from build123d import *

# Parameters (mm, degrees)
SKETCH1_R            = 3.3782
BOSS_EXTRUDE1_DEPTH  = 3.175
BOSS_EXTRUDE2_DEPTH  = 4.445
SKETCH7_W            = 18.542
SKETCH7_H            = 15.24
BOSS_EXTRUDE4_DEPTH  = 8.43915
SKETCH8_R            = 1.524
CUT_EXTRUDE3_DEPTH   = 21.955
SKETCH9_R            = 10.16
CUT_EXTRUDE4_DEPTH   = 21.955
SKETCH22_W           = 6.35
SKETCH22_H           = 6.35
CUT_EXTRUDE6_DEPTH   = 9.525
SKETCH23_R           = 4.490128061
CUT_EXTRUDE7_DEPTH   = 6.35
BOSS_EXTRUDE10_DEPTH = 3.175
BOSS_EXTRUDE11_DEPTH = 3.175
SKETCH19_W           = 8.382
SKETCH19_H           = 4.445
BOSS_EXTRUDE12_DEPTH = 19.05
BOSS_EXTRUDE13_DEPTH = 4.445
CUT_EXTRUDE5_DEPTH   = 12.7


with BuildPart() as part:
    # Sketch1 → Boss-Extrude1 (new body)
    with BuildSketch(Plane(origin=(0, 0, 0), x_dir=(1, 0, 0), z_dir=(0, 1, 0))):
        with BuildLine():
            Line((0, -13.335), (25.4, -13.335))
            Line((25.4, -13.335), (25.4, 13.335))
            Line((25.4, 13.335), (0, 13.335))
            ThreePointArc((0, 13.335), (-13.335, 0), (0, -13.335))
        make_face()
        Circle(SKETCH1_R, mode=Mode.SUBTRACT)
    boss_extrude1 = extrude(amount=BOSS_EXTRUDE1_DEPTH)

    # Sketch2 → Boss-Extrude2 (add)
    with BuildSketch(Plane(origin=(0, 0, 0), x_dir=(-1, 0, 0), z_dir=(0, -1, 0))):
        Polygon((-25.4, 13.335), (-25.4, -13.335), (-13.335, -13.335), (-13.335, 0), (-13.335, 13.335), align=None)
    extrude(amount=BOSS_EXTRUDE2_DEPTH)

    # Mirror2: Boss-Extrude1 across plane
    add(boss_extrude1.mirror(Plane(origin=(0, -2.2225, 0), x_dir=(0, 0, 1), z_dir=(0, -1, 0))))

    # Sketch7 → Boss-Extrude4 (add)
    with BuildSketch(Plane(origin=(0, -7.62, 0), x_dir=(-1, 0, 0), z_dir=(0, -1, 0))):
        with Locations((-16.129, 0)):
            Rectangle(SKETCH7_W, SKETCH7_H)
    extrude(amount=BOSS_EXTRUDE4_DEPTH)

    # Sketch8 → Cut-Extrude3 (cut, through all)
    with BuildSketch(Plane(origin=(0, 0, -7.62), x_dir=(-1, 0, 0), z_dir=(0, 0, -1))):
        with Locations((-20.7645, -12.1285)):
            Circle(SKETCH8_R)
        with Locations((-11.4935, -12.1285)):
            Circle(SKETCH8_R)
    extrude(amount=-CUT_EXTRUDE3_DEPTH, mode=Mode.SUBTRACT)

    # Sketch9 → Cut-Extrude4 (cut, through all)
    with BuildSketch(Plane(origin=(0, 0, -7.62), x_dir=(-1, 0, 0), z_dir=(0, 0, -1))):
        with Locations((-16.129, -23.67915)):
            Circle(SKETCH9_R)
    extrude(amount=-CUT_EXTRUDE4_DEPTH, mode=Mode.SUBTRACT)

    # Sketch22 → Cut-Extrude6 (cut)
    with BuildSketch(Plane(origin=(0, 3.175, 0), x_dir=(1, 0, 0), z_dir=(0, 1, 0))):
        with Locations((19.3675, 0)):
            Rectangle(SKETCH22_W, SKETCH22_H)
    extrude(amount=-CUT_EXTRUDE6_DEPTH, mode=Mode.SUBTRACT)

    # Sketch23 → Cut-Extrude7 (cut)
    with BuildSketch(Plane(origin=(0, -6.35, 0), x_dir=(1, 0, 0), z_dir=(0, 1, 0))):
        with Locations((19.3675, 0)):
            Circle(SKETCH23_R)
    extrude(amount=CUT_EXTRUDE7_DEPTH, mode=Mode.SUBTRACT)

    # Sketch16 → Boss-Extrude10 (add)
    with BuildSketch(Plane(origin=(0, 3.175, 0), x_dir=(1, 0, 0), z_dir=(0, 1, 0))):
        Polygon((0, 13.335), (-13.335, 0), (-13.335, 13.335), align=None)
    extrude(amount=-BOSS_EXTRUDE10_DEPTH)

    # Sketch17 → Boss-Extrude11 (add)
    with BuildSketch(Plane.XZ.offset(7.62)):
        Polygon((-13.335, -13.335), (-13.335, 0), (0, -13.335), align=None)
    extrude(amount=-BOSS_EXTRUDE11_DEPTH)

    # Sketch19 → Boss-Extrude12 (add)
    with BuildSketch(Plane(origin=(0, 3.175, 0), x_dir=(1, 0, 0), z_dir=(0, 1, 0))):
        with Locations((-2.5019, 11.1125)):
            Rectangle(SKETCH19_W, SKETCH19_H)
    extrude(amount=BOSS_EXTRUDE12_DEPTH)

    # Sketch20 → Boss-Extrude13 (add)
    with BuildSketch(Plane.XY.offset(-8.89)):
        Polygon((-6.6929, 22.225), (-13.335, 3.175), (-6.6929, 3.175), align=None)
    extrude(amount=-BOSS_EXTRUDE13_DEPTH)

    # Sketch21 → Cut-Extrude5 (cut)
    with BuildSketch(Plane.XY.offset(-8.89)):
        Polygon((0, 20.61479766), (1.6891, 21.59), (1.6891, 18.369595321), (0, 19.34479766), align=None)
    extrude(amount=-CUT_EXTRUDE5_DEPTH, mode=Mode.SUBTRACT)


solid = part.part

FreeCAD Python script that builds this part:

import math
import FreeCAD as App
import Part
import Sketcher
from FreeCAD import Vector
Q = App.Units.Quantity

doc = App.newDocument("Part")
body = doc.addObject("PartDesign::Body", "Body")

sketch1 = doc.addObject("Sketcher::SketchObject", "Sketch")
body.addObject(sketch1)
sketch1.AttachmentSupport = (doc.XZ_Plane, [""])
sketch1.MapMode = "FlatFace"
sketch1.addGeometry([
    Part.LineSegment(Vector(0, 13.335, 0), Vector(25.4, 13.335, 0)),
    Part.LineSegment(Vector(25.4, 13.335, 0), Vector(25.4, -13.335, 0)),
    Part.LineSegment(Vector(25.4, -13.335, 0), Vector(0, -13.335, 0)),
    Part.ArcOfCircle(Part.Circle(Vector(0, 0, 0), Vector(0, 0, 1), 13.335), math.radians(90), math.radians(270)),
    Part.Circle(Vector(0, 0, 0), Vector(0, 0, 1), 3.3782),
], False)
sketch1.addConstraint([
    Sketcher.Constraint("Coincident", 0, 2, 1, 1),
    Sketcher.Constraint("Coincident", 1, 2, 2, 1),
    Sketcher.Constraint("Tangent", 2, 2, 3, 2),
    Sketcher.Constraint("Tangent", 3, 1, 0, 1),
    Sketcher.Constraint("Horizontal", 0),
    Sketcher.Constraint("Vertical", 1),
    Sketcher.Constraint("Horizontal", 2),
    Sketcher.Constraint("Coincident", 3, 3, -1, 1),
    Sketcher.Constraint("Coincident", 4, 3, -1, 1),
    Sketcher.Constraint("DistanceX", 0, 1, 0, 2, Q("1 in")),
    Sketcher.Constraint("Diameter", 4, Q("0.266 in")),
    Sketcher.Constraint("Radius", 3, Q("0.525 in")),
])
pad1 = doc.addObject("PartDesign::Pad", "Pad")
body.addObject(pad1)
pad1.Profile = sketch1
pad1.Length = Q("0.125 in")
pad1.Reversed = True

sketch2 = doc.addObject("Sketcher::SketchObject", "Sketch001")
body.addObject(sketch2)
sketch2.AttachmentSupport = (doc.XZ_Plane, [""])
sketch2.MapMode = "FlatFace"
sketch2.addGeometry([
    Part.LineSegment(Vector(25.4, -13.335, 0), Vector(25.4, 13.335, 0)),
    Part.LineSegment(Vector(25.4, 13.335, 0), Vector(13.335, 13.335, 0)),
    Part.LineSegment(Vector(13.335, 13.335, 0), Vector(13.335, -13.335, 0)),
    Part.LineSegment(Vector(13.335, -13.335, 0), Vector(25.4, -13.335, 0)),
], False)
sketch2.addConstraint([
    Sketcher.Constraint("Coincident", 0, 2, 1, 1),
    Sketcher.Constraint("Coincident", 1, 2, 2, 1),
    Sketcher.Constraint("Coincident", 2, 2, 3, 1),
    Sketcher.Constraint("Coincident", 3, 2, 0, 1),
    Sketcher.Constraint("Vertical", 0),
    Sketcher.Constraint("Horizontal", 1),
    Sketcher.Constraint("Vertical", 2),
    Sketcher.Constraint("Horizontal", 3),
    Sketcher.Constraint("DistanceX", -1, 1, 0, 2, Q("1 in")),
    Sketcher.Constraint("DistanceY", 0, 1, 0, 2, Q("1.05 in")),
    Sketcher.Constraint("DistanceX", 1, 2, 1, 1, Q("0.475 in")),
    Sketcher.Constraint("DistanceY", -1, 1, 0, 2, Q("0.525 in")),
])
pad2 = doc.addObject("PartDesign::Pad", "Pad001")
body.addObject(pad2)
pad2.Profile = sketch2
pad2.Length = Q("0.175 in")
doc.recompute()

datumplane = doc.addObject("PartDesign::Plane", "DatumPlane")
body.addObject(datumplane)
datumplane.AttachmentSupport = (doc.XZ_Plane, [""])
datumplane.MapMode = "FlatFace"
datumplane.AttachmentOffset = App.Placement(Vector(0, 0, 0.0875 * 25.4), App.Rotation())
mirrored = doc.addObject("PartDesign::Mirrored", "Mirrored")
body.addObject(mirrored)
mirrored.Originals = [pad1]
mirrored.MirrorPlane = (datumplane, [""])
body.Tip = mirrored

sketch3 = doc.addObject("Sketcher::SketchObject", "Sketch002")
body.addObject(sketch3)
sketch3.AttachmentSupport = (doc.XZ_Plane, [""])
sketch3.MapMode = "FlatFace"
sketch3.AttachmentOffset = App.Placement(Vector(0, 0, 0.3 * 25.4), App.Rotation())
sketch3.addGeometry([
    Part.LineSegment(Vector(25.4, -7.62, 0), Vector(25.4, 7.62, 0)),
    Part.LineSegment(Vector(25.4, 7.62, 0), Vector(6.858, 7.62, 0)),
    Part.LineSegment(Vector(6.858, 7.62, 0), Vector(6.858, -7.62, 0)),
    Part.LineSegment(Vector(6.858, -7.62, 0), Vector(25.4, -7.62, 0)),
], False)
sketch3.addConstraint([
    Sketcher.Constraint("Coincident", 0, 2, 1, 1),
    Sketcher.Constraint("Coincident", 1, 2, 2, 1),
    Sketcher.Constraint("Coincident", 2, 2, 3, 1),
    Sketcher.Constraint("Coincident", 3, 2, 0, 1),
    Sketcher.Constraint("Vertical", 0),
    Sketcher.Constraint("Horizontal", 1),
    Sketcher.Constraint("Vertical", 2),
    Sketcher.Constraint("Horizontal", 3),
    Sketcher.Constraint("DistanceY", 0, 1, 0, 2, Q("0.6 in")),
    Sketcher.Constraint("DistanceX", -1, 1, 0, 2, Q("1 in")),
    Sketcher.Constraint("DistanceX", 1, 2, 1, 1, Q("0.73 in")),
    Sketcher.Constraint("DistanceY", -1, 1, 0, 2, Q("0.3 in")),
])
pad3 = doc.addObject("PartDesign::Pad", "Pad002")
body.addObject(pad3)
pad3.Profile = sketch3
pad3.Length = 8.43915

sketch4 = doc.addObject("Sketcher::SketchObject", "Sketch003")
body.addObject(sketch4)
sketch4.AttachmentSupport = (doc.XY_Plane, [""])
sketch4.MapMode = "FlatFace"
sketch4.AttachmentOffset = App.Placement(Vector(0, 0, -0.3 * 25.4), App.Rotation())
sketch4.addGeometry([
    Part.Circle(Vector(20.7645, -12.1285, 0), Vector(0, 0, 1), 1.524),
    Part.Circle(Vector(11.4935, -12.1285, 0), Vector(0, 0, 1), 1.524),
], False)
sketch4.addConstraint([
    Sketcher.Constraint("Equal", 0, 1),
    Sketcher.Constraint("Horizontal", 0, 3, 1, 3),
    Sketcher.Constraint("Diameter", 0, Q("0.12 in")),
    Sketcher.Constraint("DistanceX", 1, 3, 0, 3, Q("0.365 in")),
    Sketcher.Constraint("DistanceX", -1, 1, 0, 3, Q("0.8175 in")),
    Sketcher.Constraint("DistanceY", 0, 3, -1, 1, Q("0.4775 in")),
])
pocket1 = doc.addObject("PartDesign::Pocket", "Pocket")
body.addObject(pocket1)
pocket1.Profile = sketch4
pocket1.Type = "ThroughAll"
pocket1.Reversed = True

sketch5 = doc.addObject("Sketcher::SketchObject", "Sketch004")
body.addObject(sketch5)
sketch5.AttachmentSupport = (doc.XY_Plane, [""])
sketch5.MapMode = "FlatFace"
sketch5.AttachmentOffset = App.Placement(Vector(0, 0, -0.3 * 25.4), App.Rotation())
sketch5.addGeometry(Part.Circle(Vector(16.129, -23.67915, 0), Vector(0, 0, 1), 10.16), False)
sketch5.addConstraint([
    Sketcher.Constraint("Diameter", 0, Q("0.8 in")),
    Sketcher.Constraint("DistanceX", -1, 1, 0, 3, Q("0.635 in")),
    Sketcher.Constraint("DistanceY", 0, 3, -1, 1, 23.67915),
])
pocket2 = doc.addObject("PartDesign::Pocket", "Pocket001")
body.addObject(pocket2)
pocket2.Profile = sketch5
pocket2.Type = "ThroughAll"
pocket2.Reversed = True

sketch6 = doc.addObject("Sketcher::SketchObject", "Sketch005")
body.addObject(sketch6)
sketch6.AttachmentSupport = (doc.XZ_Plane, [""])
sketch6.MapMode = "FlatFace"
sketch6.AttachmentOffset = App.Placement(Vector(0, 0, -0.125 * 25.4), App.Rotation())
sketch6.addGeometry([
    Part.LineSegment(Vector(16.1925, -3.175, 0), Vector(16.1925, 3.175, 0)),
    Part.LineSegment(Vector(16.1925, 3.175, 0), Vector(22.5425, 3.175, 0)),
    Part.LineSegment(Vector(22.5425, 3.175, 0), Vector(22.5425, -3.175, 0)),
    Part.LineSegment(Vector(22.5425, -3.175, 0), Vector(16.1925, -3.175, 0)),
], False)
sketch6.addConstraint([
    Sketcher.Constraint("Coincident", 0, 2, 1, 1),
    Sketcher.Constraint("Coincident", 1, 2, 2, 1),
    Sketcher.Constraint("Coincident", 2, 2, 3, 1),
    Sketcher.Constraint("Coincident", 3, 2, 0, 1),
    Sketcher.Constraint("Vertical", 0),
    Sketcher.Constraint("Horizontal", 1),
    Sketcher.Constraint("Vertical", 2),
    Sketcher.Constraint("Horizontal", 3),
    Sketcher.Constraint("Equal", 3, 0),
    Sketcher.Constraint("DistanceX", 1, 1, 1, 2, Q("0.25 in")),
    Sketcher.Constraint("DistanceY", -1, 1, 0, 2, Q("0.125 in")),
    Sketcher.Constraint("DistanceX", -1, 1, 0, 2, Q("0.6375 in")),
])
pocket3 = doc.addObject("PartDesign::Pocket", "Pocket002")
body.addObject(pocket3)
pocket3.Profile = sketch6
pocket3.Length = Q("0.375 in")
pocket3.Reversed = True

sketch7 = doc.addObject("Sketcher::SketchObject", "Sketch006")
body.addObject(sketch7)
sketch7.AttachmentSupport = (doc.XZ_Plane, [""])
sketch7.MapMode = "FlatFace"
sketch7.AttachmentOffset = App.Placement(Vector(0, 0, 0.25 * 25.4), App.Rotation())
sketch7.addGeometry(Part.Circle(Vector(19.3675, 0, 0), Vector(0, 0, 1), 4.490128), False)
sketch7.addConstraint([
    Sketcher.Constraint("PointOnObject", 0, 3, -1),
    Sketcher.Constraint("Diameter", 0, 8.980256),
    Sketcher.Constraint("DistanceX", -1, 1, 0, 3, Q("0.7625 in")),
])
pocket4 = doc.addObject("PartDesign::Pocket", "Pocket003")
body.addObject(pocket4)
pocket4.Profile = sketch7
pocket4.Length = Q("0.25 in")

sketch8 = doc.addObject("Sketcher::SketchObject", "Sketch007")
body.addObject(sketch8)
sketch8.AttachmentSupport = (doc.XZ_Plane, [""])
sketch8.MapMode = "FlatFace"
sketch8.AttachmentOffset = App.Placement(Vector(0, 0, -0.125 * 25.4), App.Rotation())
sketch8.addGeometry([
    Part.LineSegment(Vector(-13.335, 0, 0), Vector(0, -13.335, 0)),
    Part.LineSegment(Vector(0, -13.335, 0), Vector(-13.335, -13.335, 0)),
    Part.LineSegment(Vector(-13.335, -13.335, 0), Vector(-13.335, 0, 0)),
], False)
sketch8.addConstraint([
    Sketcher.Constraint("Coincident", 0, 2, 1, 1),
    Sketcher.Constraint("Coincident", 1, 2, 2, 1),
    Sketcher.Constraint("Coincident", 2, 2, 0, 1),
    Sketcher.Constraint("Horizontal", 1),
    Sketcher.Constraint("Vertical", 2),
    Sketcher.Constraint("PointOnObject", 0, 2, -2),
    Sketcher.Constraint("PointOnObject", 2, 2, -1),
    Sketcher.Constraint("Equal", 1, 2),
    Sketcher.Constraint("DistanceX", 1, 2, 1, 1, Q("0.525 in")),
])
pad4 = doc.addObject("PartDesign::Pad", "Pad003")
body.addObject(pad4)
pad4.Profile = sketch8
pad4.Length = Q("0.125 in")

sketch9 = doc.addObject("Sketcher::SketchObject", "Sketch008")
body.addObject(sketch9)
sketch9.AttachmentSupport = (doc.XZ_Plane, [""])
sketch9.MapMode = "FlatFace"
sketch9.AttachmentOffset = App.Placement(Vector(0, 0, 0.3 * 25.4), App.Rotation())
sketch9.addGeometry([
    Part.LineSegment(Vector(-13.335, 0, 0), Vector(-13.335, -13.335, 0)),
    Part.LineSegment(Vector(-13.335, -13.335, 0), Vector(0, -13.335, 0)),
    Part.LineSegment(Vector(0, -13.335, 0), Vector(-13.335, 0, 0)),
], False)
sketch9.addConstraint([
    Sketcher.Constraint("Coincident", 0, 2, 1, 1),
    Sketcher.Constraint("Coincident", 1, 2, 2, 1),
    Sketcher.Constraint("Coincident", 2, 2, 0, 1),
    Sketcher.Constraint("Vertical", 0),
    Sketcher.Constraint("Horizontal", 1),
    Sketcher.Constraint("PointOnObject", 1, 2, -2),
    Sketcher.Constraint("PointOnObject", 2, 2, -1),
    Sketcher.Constraint("Equal", 1, 0),
    Sketcher.Constraint("DistanceX", 1, 1, 1, 2, Q("0.525 in")),
])
pad5 = doc.addObject("PartDesign::Pad", "Pad004")
body.addObject(pad5)
pad5.Profile = sketch9
pad5.Length = Q("0.125 in")
pad5.Reversed = True

sketch10 = doc.addObject("Sketcher::SketchObject", "Sketch009")
body.addObject(sketch10)
sketch10.AttachmentSupport = (doc.XZ_Plane, [""])
sketch10.MapMode = "FlatFace"
sketch10.AttachmentOffset = App.Placement(Vector(0, 0, -0.125 * 25.4), App.Rotation())
sketch10.addGeometry([
    Part.LineSegment(Vector(-6.6929, -13.335, 0), Vector(-6.6929, -8.89, 0)),
    Part.LineSegment(Vector(-6.6929, -8.89, 0), Vector(1.6891, -8.89, 0)),
    Part.LineSegment(Vector(1.6891, -8.89, 0), Vector(1.6891, -13.335, 0)),
    Part.LineSegment(Vector(1.6891, -13.335, 0), Vector(-6.6929, -13.335, 0)),
], False)
sketch10.addConstraint([
    Sketcher.Constraint("Coincident", 0, 2, 1, 1),
    Sketcher.Constraint("Coincident", 1, 2, 2, 1),
    Sketcher.Constraint("Coincident", 2, 2, 3, 1),
    Sketcher.Constraint("Coincident", 3, 2, 0, 1),
    Sketcher.Constraint("Vertical", 0),
    Sketcher.Constraint("Horizontal", 1),
    Sketcher.Constraint("Vertical", 2),
    Sketcher.Constraint("Horizontal", 3),
    Sketcher.Constraint("DistanceX", 1, 1, 1, 2, Q("0.33 in")),
    Sketcher.Constraint("DistanceY", 0, 1, 0, 2, Q("0.175 in")),
    Sketcher.Constraint("DistanceY", 0, 2, -1, 1, Q("0.35 in")),
    Sketcher.Constraint("DistanceX", 0, 2, -1, 1, Q("0.2635 in")),
])
pad6 = doc.addObject("PartDesign::Pad", "Pad005")
body.addObject(pad6)
pad6.Profile = sketch10
pad6.Length = Q("0.75 in")
pad6.Reversed = True

sketch11 = doc.addObject("Sketcher::SketchObject", "Sketch010")
body.addObject(sketch11)
sketch11.AttachmentSupport = (doc.XY_Plane, [""])
sketch11.MapMode = "FlatFace"
sketch11.AttachmentOffset = App.Placement(Vector(0, 0, -0.35 * 25.4), App.Rotation())
sketch11.addGeometry([
    Part.LineSegment(Vector(-6.6929, 22.225, 0), Vector(-13.335, 3.175, 0)),
    Part.LineSegment(Vector(-13.335, 3.175, 0), Vector(-6.6929, 3.175, 0)),
    Part.LineSegment(Vector(-6.6929, 3.175, 0), Vector(-6.6929, 22.225, 0)),
], False)
sketch11.addConstraint([
    Sketcher.Constraint("Coincident", 0, 2, 1, 1),
    Sketcher.Constraint("Coincident", 1, 2, 2, 1),
    Sketcher.Constraint("Coincident", 2, 2, 0, 1),
    Sketcher.Constraint("Horizontal", 1),
    Sketcher.Constraint("Vertical", 2),
    Sketcher.Constraint("DistanceY", 2, 1, 2, 2, Q("0.75 in")),
    Sketcher.Constraint("DistanceX", 1, 1, 1, 2, Q("0.2615 in")),
    Sketcher.Constraint("DistanceX", 0, 2, -1, 1, Q("0.525 in")),
    Sketcher.Constraint("DistanceY", -1, 1, 0, 2, Q("0.125 in")),
])
pad7 = doc.addObject("PartDesign::Pad", "Pad006")
body.addObject(pad7)
pad7.Profile = sketch11
pad7.Length = Q("0.175 in")
pad7.Reversed = True

sketch12 = doc.addObject("Sketcher::SketchObject", "Sketch011")
body.addObject(sketch12)
sketch12.AttachmentSupport = (doc.XY_Plane, [""])
sketch12.MapMode = "FlatFace"
sketch12.AttachmentOffset = App.Placement(Vector(0, 0, -0.35 * 25.4), App.Rotation())
sketch12.addGeometry([
    Part.LineSegment(Vector(1.6891, 21.59, 0), Vector(0, 20.614798, 0)),
    Part.LineSegment(Vector(0, 20.614798, 0), Vector(0, 19.344798, 0)),
    Part.LineSegment(Vector(0, 19.344798, 0), Vector(1.6891, 18.369595, 0)),
    Part.LineSegment(Vector(1.6891, 18.369595, 0), Vector(1.6891, 21.59, 0)),
], False)
sketch12.addConstraint([
    Sketcher.Constraint("Coincident", 0, 2, 1, 1),
    Sketcher.Constraint("Coincident", 1, 2, 2, 1),
    Sketcher.Constraint("Coincident", 2, 2, 3, 1),
    Sketcher.Constraint("Coincident", 3, 2, 0, 1),
    Sketcher.Constraint("Vertical", 1),
    Sketcher.Constraint("Vertical", 3),
    Sketcher.Constraint("PointOnObject", 0, 2, -2),
    Sketcher.Constraint("Equal", 0, 2),
    Sketcher.Constraint("Angle", 0, Q("-150 deg")),
    Sketcher.Constraint("DistanceY", 1, 2, 1, 1, Q("0.05 in")),
    Sketcher.Constraint("DistanceY", -1, 1, 3, 2, Q("0.85 in")),
    Sketcher.Constraint("DistanceX", -1, 1, 2, 2, Q("0.0665 in")),
])
pocket5 = doc.addObject("PartDesign::Pocket", "Pocket004")
body.addObject(pocket5)
pocket5.Profile = sketch12
pocket5.Length = Q("0.5 in")

doc.recompute()
